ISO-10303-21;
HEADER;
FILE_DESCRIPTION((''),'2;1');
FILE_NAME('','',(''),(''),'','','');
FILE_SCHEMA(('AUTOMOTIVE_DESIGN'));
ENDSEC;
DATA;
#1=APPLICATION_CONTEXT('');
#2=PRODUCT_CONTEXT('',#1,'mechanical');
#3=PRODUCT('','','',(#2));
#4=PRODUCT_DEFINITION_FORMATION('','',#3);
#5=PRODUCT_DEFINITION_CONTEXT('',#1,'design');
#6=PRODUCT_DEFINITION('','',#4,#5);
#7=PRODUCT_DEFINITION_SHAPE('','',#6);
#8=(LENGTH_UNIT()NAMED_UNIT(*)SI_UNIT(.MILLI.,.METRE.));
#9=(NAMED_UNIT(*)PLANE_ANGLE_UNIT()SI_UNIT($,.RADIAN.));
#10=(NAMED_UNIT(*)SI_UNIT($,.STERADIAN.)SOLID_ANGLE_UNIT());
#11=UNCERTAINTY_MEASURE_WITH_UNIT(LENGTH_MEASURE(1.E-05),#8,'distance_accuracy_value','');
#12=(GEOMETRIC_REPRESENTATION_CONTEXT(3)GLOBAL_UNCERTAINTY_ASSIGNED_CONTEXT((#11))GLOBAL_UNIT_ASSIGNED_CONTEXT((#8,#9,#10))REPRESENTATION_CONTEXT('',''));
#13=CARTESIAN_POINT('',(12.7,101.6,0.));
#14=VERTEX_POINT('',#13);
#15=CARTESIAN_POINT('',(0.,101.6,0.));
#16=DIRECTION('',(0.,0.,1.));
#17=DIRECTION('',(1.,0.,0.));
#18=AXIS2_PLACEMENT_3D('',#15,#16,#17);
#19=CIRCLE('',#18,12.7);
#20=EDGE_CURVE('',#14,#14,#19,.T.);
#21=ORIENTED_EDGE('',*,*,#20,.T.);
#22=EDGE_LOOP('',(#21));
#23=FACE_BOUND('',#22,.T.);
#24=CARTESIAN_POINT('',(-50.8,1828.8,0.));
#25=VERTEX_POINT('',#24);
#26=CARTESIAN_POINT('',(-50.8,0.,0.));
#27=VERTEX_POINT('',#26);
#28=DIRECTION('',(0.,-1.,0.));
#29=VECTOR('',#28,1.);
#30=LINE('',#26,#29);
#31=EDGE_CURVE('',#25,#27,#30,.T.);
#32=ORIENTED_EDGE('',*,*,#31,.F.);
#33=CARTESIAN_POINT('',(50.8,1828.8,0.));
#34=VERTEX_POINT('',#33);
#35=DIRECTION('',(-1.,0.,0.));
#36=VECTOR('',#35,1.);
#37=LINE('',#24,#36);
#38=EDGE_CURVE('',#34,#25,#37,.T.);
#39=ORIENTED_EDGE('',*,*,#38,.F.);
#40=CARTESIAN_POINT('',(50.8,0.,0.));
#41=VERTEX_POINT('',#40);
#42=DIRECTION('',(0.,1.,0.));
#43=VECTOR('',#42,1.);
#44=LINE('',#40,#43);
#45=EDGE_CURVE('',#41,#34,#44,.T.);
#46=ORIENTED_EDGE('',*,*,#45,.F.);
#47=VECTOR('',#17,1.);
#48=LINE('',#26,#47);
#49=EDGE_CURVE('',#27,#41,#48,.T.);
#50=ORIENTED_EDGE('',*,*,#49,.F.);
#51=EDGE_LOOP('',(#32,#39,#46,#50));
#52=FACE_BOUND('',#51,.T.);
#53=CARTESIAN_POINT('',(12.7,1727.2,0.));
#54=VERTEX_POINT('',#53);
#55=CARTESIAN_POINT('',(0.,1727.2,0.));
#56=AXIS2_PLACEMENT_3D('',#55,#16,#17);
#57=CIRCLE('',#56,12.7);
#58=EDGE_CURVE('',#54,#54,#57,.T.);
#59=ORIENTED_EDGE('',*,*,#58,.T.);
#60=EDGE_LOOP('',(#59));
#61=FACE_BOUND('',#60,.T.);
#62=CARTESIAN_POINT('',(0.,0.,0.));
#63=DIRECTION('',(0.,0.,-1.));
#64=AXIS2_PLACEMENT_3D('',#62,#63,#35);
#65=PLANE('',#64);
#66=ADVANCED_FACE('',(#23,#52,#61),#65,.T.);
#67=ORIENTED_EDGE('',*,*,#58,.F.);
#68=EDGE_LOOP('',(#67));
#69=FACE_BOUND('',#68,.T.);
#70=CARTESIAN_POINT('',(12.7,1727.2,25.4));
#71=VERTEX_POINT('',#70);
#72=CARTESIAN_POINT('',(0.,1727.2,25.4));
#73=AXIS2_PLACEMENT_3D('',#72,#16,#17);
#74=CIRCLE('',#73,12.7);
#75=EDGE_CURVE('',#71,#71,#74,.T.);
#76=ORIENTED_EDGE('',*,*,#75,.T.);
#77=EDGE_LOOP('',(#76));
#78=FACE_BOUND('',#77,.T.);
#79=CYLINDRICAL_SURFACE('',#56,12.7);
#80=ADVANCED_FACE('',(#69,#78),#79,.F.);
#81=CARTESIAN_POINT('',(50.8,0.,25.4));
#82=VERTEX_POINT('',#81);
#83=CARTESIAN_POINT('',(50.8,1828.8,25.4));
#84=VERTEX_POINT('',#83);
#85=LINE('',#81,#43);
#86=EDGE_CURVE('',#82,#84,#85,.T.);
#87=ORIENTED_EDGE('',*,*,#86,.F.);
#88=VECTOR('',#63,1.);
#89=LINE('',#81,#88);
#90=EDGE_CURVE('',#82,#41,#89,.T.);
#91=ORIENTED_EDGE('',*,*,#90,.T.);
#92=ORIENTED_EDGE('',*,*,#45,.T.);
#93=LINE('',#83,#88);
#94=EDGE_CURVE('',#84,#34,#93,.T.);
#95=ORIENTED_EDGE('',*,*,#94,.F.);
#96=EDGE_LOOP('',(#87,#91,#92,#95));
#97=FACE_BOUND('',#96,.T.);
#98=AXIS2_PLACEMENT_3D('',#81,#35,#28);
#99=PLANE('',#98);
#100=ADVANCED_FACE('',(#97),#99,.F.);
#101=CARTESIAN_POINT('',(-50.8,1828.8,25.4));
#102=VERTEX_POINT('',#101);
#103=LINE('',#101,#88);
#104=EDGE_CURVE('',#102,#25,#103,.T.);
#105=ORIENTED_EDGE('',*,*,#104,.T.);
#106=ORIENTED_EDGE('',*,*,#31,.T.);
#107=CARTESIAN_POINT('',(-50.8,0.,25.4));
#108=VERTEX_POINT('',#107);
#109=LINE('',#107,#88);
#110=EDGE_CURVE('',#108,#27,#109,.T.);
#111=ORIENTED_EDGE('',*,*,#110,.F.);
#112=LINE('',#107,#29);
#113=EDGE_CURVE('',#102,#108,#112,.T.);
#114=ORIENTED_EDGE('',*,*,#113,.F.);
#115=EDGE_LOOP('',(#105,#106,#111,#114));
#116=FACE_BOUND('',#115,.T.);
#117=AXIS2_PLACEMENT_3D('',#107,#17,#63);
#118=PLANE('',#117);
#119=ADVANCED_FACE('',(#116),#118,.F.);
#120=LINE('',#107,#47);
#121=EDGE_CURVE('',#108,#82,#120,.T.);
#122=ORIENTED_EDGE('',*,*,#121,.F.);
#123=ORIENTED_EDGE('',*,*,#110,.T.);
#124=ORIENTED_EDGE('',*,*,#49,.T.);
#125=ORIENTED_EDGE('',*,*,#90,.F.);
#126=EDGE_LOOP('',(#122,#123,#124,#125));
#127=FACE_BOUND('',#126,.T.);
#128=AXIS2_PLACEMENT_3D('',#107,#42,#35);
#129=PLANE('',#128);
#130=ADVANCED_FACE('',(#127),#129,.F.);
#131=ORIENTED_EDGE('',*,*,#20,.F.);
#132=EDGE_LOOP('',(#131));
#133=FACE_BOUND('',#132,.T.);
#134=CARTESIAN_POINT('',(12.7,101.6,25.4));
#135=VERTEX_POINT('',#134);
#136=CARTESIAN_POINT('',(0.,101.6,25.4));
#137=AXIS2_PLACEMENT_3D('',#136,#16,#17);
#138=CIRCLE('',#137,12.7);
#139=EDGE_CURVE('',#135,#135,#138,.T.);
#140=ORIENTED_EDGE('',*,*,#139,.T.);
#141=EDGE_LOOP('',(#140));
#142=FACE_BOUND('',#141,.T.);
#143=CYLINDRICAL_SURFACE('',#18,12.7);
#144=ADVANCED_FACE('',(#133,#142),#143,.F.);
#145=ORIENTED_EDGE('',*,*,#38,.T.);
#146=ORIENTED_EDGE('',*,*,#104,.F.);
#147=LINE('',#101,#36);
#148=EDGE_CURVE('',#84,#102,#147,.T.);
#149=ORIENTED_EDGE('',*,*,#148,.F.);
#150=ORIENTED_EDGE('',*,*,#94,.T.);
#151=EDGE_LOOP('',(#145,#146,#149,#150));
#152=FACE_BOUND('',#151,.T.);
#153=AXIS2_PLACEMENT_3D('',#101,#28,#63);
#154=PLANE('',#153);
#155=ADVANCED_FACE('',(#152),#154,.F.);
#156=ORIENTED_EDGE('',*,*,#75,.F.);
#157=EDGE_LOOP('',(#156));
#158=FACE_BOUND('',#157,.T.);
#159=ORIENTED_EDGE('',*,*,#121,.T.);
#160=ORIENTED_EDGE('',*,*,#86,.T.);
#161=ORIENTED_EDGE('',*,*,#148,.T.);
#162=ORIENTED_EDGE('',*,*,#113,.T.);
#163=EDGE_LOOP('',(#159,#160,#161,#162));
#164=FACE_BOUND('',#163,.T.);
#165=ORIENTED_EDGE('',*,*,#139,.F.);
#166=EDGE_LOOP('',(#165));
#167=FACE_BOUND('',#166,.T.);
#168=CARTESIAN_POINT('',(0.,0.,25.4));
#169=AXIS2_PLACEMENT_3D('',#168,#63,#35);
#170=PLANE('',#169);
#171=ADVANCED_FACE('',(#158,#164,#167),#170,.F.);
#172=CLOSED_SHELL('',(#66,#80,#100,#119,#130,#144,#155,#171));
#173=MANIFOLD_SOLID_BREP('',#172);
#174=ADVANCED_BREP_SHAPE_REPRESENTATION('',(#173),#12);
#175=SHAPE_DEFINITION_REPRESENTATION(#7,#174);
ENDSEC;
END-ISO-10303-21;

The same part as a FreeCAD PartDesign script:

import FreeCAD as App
import Part
import Sketcher
Q = App.Units.Quantity


def add_polygon(sketch, points):
    """Adds a closed chain of lines whose ends are joined by coincident constraints."""
    first, n = sketch.GeometryCount, len(points)
    for a, b in zip(points, points[1:] + points[:1]):
        sketch.addGeometry(Part.LineSegment(App.Vector(*a, 0), App.Vector(*b, 0)), False)
    for i in range(n):
        sketch.addConstraint(Sketcher.Constraint("Coincident", first + i, 2, first + (i + 1) % n, 1))

doc = App.newDocument("Part")
body = doc.addObject("PartDesign::Body", "Body")

# Sketch on XY plane
sketch1 = doc.addObject("Sketcher::SketchObject", "Sketch")
body.addObject(sketch1)
sketch1.AttachmentSupport = (doc.XY_Plane, [""])
sketch1.MapMode = "FlatFace"
add_polygon(sketch1, [(-50.8, 1828.8), (-50.8, 0), (50.8, 0), (50.8, 1828.8)])  # lines 0-3
sketch1.addConstraint([
    Sketcher.Constraint("Vertical", 0),
    Sketcher.Constraint("Horizontal", 1),
    Sketcher.Constraint("Vertical", 2),
    Sketcher.Constraint("Horizontal", 3),
    Sketcher.Constraint("Symmetric", 0, 2, 1, 2, -1, 1),
    Sketcher.Constraint("DistanceX", 1, 1, 1, 2, Q("4 in")),
    Sketcher.Constraint("DistanceY", 0, 2, 0, 1, Q("72 in")),
])
pad1 = doc.addObject("PartDesign::Pad", "Pad")
body.addObject(pad1)
pad1.Profile = sketch1
pad1.Length = Q("1 in")

# Sketch on XY plane
sketch2 = doc.addObject("Sketcher::SketchObject", "Sketch001")
body.addObject(sketch2)
sketch2.AttachmentSupport = (doc.XY_Plane, [""])
sketch2.MapMode = "FlatFace"
sketch2.AttachmentOffset = App.Placement(App.Vector(0, 0, 1 * 25.4), App.Rotation())
sketch2.addGeometry([
    Part.Circle(App.Vector(0, 1727.2, 0), App.Vector(0, 0, 1), 12.7),
    Part.Circle(App.Vector(0, 101.6, 0), App.Vector(0, 0, 1), 12.7),
], False)
sketch2.addConstraint([
    Sketcher.Constraint("Equal", 0, 1),
    Sketcher.Constraint("PointOnObject", 0, 3, -2),
    Sketcher.Constraint("PointOnObject", 1, 3, -2),
    Sketcher.Constraint("Diameter", 0, Q("1 in")),
    Sketcher.Constraint("DistanceY", -1, 1, 0, 3, Q("68 in")),
    Sketcher.Constraint("DistanceY", -1, 1, 1, 3, Q("4 in")),
])
pocket1 = doc.addObject("PartDesign::Pocket", "Pocket")
body.addObject(pocket1)
pocket1.Profile = sketch2
pocket1.Type = "ThroughAll"

doc.recompute()
